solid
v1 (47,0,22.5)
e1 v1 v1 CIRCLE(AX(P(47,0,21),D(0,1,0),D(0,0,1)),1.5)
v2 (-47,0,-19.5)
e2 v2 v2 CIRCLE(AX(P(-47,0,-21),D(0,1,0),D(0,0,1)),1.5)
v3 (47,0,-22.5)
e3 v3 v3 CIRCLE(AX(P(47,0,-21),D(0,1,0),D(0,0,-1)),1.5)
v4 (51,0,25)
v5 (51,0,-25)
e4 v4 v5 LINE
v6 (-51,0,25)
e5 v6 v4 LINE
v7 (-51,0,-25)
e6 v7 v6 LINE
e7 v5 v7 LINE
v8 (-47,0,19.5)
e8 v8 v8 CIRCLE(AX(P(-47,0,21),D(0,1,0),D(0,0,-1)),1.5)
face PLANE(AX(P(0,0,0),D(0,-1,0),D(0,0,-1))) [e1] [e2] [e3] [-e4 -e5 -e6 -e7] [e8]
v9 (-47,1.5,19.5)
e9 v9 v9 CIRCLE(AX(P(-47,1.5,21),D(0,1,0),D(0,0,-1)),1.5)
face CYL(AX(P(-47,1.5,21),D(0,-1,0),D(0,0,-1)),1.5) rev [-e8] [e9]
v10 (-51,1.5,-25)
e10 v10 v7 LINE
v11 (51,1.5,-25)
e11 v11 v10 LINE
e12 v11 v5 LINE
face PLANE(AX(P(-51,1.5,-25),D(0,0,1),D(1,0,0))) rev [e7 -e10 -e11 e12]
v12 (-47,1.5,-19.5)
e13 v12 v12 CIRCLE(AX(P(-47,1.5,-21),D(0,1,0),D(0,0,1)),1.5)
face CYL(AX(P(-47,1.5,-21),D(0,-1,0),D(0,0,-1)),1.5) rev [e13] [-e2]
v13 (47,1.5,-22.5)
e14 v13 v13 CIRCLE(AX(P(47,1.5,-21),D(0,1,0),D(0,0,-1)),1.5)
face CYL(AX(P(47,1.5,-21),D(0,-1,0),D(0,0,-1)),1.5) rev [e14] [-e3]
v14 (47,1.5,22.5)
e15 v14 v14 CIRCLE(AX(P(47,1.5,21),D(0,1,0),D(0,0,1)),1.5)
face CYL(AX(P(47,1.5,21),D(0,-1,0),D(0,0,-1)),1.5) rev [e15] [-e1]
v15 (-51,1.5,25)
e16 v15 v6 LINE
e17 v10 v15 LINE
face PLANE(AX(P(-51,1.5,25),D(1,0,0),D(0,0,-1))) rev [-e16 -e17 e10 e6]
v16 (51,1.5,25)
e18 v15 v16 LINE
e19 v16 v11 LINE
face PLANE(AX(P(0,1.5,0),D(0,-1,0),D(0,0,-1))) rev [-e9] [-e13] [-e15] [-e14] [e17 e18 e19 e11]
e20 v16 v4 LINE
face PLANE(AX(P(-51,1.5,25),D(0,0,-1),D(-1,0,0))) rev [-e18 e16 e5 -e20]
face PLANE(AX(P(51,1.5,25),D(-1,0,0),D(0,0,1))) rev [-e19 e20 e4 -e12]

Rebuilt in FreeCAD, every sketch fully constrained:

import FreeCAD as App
import Part
import Sketcher
from FreeCAD import Vector
Q = App.Units.Quantity

doc = App.newDocument("Part")
params = doc.addObject("Spreadsheet::Sheet", "Params")
for row, (alias, value) in enumerate([
    ("sketch1_diameter", "3 mm"),
    ("sketch1_width", "102 mm"),
    ("sketch1_height", "50 mm"),
    ("pad1_length", "1.5 mm"),
], start=1):
    params.set(f"A{row}", alias)
    params.set(f"B{row}", "=" + value)
    params.setAlias(f"B{row}", alias)

body = doc.addObject("PartDesign::Body", "Body")

# Sketch on XZ plane
sketch1 = body.newObject("Sketcher::SketchObject", "Sketch")
sketch1.AttachmentSupport = (doc.getObject("XZ_Plane"), [""])
sketch1.MapMode = "FlatFace"
sketch1.addGeometry([
    Part.LineSegment(Vector(-51, -25, 0), Vector(-51, 25, 0)),  # 0
    Part.LineSegment(Vector(-51, 25, 0), Vector(51, 25, 0)),  # 1
    Part.LineSegment(Vector(51, 25, 0), Vector(51, -25, 0)),  # 2
    Part.LineSegment(Vector(51, -25, 0), Vector(-51, -25, 0)),  # 3
    Part.Circle(Vector(-47, 21, 0), Vector(0, 0, 1), 1.5),  # 4
    Part.Circle(Vector(47, 21, 0), Vector(0, 0, 1), 1.5),  # 5
    Part.Circle(Vector(-47, -21, 0), Vector(0, 0, 1), 1.5),  # 6
    Part.Circle(Vector(47, -21, 0), Vector(0, 0, 1), 1.5),  # 7
], False)
sketch1.addConstraint([
    Sketcher.Constraint("Coincident", 0, 2, 1, 1),
    Sketcher.Constraint("Coincident", 1, 2, 2, 1),
    Sketcher.Constraint("Coincident", 2, 2, 3, 1),
    Sketcher.Constraint("Coincident", 3, 2, 0, 1),
    Sketcher.Constraint("Vertical", 0),
    Sketcher.Constraint("Horizontal", 1),
    Sketcher.Constraint("Vertical", 2),
    Sketcher.Constraint("Horizontal", 3),
    Sketcher.Constraint("Equal", 4, 5),
    Sketcher.Constraint("Equal", 5, 6),
    Sketcher.Constraint("Equal", 6, 7),
    Sketcher.Constraint("Symmetric", 5, 3, 6, 3, -1, 1),
    Sketcher.Constraint("Symmetric", 4, 3, 7, 3, -1, 1),
    Sketcher.Constraint("Symmetric", 0, 2, 2, 2, -1, 1),
    Sketcher.Constraint("Symmetric", 4, 3, 5, 3, -2),
    Sketcher.Constraint("Diameter", 4, Q("3 mm")),
    Sketcher.Constraint("DistanceX", 1, 1, 1, 2, Q("102 mm")),
    Sketcher.Constraint("DistanceY", 0, 1, 0, 2, Q("50 mm")),
    Sketcher.Constraint("DistanceX", 4, 3, -1, 1, Q("47 mm")),
    Sketcher.Constraint("DistanceY", -1, 1, 4, 3, Q("21 mm")),
])
sketch1.setExpression("Constraints[15]", "Params.sketch1_diameter")
sketch1.setExpression("Constraints[16]", "Params.sketch1_width")
sketch1.setExpression("Constraints[17]", "Params.sketch1_height")
pad1 = body.newObject("PartDesign::Pad", "Pad")
pad1.Profile = sketch1
pad1.setExpression("Length", "Params.pad1_length")
pad1.Reversed = True

doc.recompute()
